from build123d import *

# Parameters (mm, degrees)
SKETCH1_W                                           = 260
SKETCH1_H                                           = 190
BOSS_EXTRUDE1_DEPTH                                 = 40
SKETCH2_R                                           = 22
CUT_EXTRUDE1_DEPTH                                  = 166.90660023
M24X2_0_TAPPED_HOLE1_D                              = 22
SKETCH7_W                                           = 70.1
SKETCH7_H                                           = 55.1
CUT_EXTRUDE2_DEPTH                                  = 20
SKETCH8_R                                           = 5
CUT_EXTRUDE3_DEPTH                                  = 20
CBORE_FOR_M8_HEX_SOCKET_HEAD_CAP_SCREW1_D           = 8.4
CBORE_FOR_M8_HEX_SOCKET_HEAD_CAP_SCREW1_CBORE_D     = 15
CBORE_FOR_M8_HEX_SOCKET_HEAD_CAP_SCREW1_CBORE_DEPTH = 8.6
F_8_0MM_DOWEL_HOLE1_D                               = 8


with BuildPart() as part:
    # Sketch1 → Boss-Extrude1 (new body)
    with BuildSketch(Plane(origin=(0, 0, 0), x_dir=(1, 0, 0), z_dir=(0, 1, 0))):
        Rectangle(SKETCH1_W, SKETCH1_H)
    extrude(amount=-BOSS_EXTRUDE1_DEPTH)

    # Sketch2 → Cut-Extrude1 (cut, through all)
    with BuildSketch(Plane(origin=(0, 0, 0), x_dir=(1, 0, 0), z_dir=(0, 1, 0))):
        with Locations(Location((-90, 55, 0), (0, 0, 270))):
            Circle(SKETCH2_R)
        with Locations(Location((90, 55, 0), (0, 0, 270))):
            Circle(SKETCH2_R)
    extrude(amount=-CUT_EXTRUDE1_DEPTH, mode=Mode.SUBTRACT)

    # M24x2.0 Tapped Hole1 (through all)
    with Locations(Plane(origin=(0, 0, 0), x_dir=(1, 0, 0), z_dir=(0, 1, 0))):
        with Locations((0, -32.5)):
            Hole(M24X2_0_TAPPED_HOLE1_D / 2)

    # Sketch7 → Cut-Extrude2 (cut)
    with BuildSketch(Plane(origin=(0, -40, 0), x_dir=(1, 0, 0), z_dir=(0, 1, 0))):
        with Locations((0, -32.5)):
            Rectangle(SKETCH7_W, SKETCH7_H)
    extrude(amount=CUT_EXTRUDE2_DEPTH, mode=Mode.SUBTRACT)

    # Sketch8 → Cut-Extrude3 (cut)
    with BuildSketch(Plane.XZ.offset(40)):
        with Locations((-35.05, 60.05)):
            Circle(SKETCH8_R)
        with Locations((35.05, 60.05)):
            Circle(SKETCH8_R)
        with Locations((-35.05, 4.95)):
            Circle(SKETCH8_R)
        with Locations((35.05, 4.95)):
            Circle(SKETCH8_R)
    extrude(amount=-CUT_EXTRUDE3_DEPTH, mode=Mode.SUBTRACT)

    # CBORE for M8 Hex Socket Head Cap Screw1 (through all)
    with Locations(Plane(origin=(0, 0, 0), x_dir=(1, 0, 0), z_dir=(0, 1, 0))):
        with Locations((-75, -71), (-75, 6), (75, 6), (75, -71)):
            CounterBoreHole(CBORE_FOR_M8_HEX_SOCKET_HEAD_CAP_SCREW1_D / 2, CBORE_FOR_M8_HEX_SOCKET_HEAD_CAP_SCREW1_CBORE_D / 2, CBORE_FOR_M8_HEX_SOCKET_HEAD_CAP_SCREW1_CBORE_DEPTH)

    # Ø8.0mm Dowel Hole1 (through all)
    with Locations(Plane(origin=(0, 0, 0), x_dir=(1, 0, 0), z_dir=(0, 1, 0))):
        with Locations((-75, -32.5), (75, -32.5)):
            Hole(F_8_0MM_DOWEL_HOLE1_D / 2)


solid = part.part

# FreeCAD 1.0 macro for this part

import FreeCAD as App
import Part
import Sketcher
from FreeCAD import Vector
Q = App.Units.Quantity

doc = App.newDocument("Part")
body = doc.addObject("PartDesign::Body", "Body")

sketch1 = body.newObject("Sketcher::SketchObject", "Sketch")
sketch1.AttachmentSupport = (doc.getObject("XZ_Plane"), [""])
sketch1.MapMode = "FlatFace"
sketch1.addGeometry([
    Part.LineSegment(Vector(-130, -95, 0), Vector(-130, 95, 0)),
    Part.LineSegment(Vector(-130, 95, 0), Vector(130, 95, 0)),
    Part.LineSegment(Vector(130, 95, 0), Vector(130, -95, 0)),
    Part.LineSegment(Vector(130, -95, 0), Vector(-130, -95, 0)),
], False)
sketch1.addConstraint([
    Sketcher.Constraint("Coincident", 0, 2, 1, 1),
    Sketcher.Constraint("Coincident", 1, 2, 2, 1),
    Sketcher.Constraint("Coincident", 2, 2, 3, 1),
    Sketcher.Constraint("Coincident", 3, 2, 0, 1),
    Sketcher.Constraint("Vertical", 0),
    Sketcher.Constraint("Horizontal", 1),
    Sketcher.Constraint("Vertical", 2),
    Sketcher.Constraint("Horizontal", 3),
    Sketcher.Constraint("Symmetric", 0, 2, 2, 2, -1, 1),
    Sketcher.Constraint("DistanceX", 1, 1, 1, 2, Q("260 mm")),
    Sketcher.Constraint("DistanceY", 0, 1, 0, 2, Q("190 mm")),
])
pad1 = body.newObject("PartDesign::Pad", "Pad")
pad1.Profile = sketch1
pad1.Length = 40

sketch2 = body.newObject("Sketcher::SketchObject", "Sketch001")
sketch2.AttachmentSupport = (doc.getObject("XZ_Plane"), [""])
sketch2.MapMode = "FlatFace"
sketch2.addGeometry([
    Part.Circle(Vector(-90, -55, 0), Vector(0, 0, 1), 22),
    Part.Circle(Vector(90, -55, 0), Vector(0, 0, 1), 22),
], False)
sketch2.addConstraint([
    Sketcher.Constraint("Equal", 0, 1),
    Sketcher.Constraint("Symmetric", 0, 3, 1, 3, -2),
    Sketcher.Constraint("Diameter", 0, Q("44 mm")),
    Sketcher.Constraint("DistanceX", 0, 3, -1, 1, Q("90 mm")),
    Sketcher.Constraint("DistanceY", 0, 3, -1, 1, Q("55 mm")),
])
pocket1 = body.newObject("PartDesign::Pocket", "Pocket")
pocket1.Profile = sketch2
pocket1.Type = "ThroughAll"
pocket1.Reversed = True

sketch3 = body.newObject("Sketcher::SketchObject", "Sketch002")
sketch3.AttachmentSupport = (doc.getObject("XZ_Plane"), [""])
sketch3.MapMode = "FlatFace"
sketch3.addGeometry(Part.Circle(Vector(0, 32, 0), Vector(0, 0, 1), 11), False)
sketch3.addConstraint([
    Sketcher.Constraint("PointOnObject", 0, 3, -2),
    Sketcher.Constraint("Diameter", 0, Q("22 mm")),
    Sketcher.Constraint("DistanceY", -1, 1, 0, 3, Q("32.5 mm")),
])
doc.recompute()
hole = body.newObject("PartDesign::Hole", "Hole")
hole.Profile = sketch3
hole.ThreadType = "None"
hole.Diameter = 22
hole.DepthType = "ThroughAll"
hole.Reversed = True

sketch4 = body.newObject("Sketcher::SketchObject", "Sketch003")
sketch4.AttachmentSupport = (doc.getObject("XZ_Plane"), [""])
sketch4.MapMode = "FlatFace"
sketch4.AttachmentOffset = App.Placement(Vector(0, 0, 40), App.Rotation())
sketch4.addGeometry([
    Part.LineSegment(Vector(-35, 5, 0), Vector(-35, 60, 0)),
    Part.LineSegment(Vector(-35, 60, 0), Vector(35, 60, 0)),
    Part.LineSegment(Vector(35, 60, 0), Vector(35, 5, 0)),
    Part.LineSegment(Vector(35, 5, 0), Vector(-35, 5, 0)),
], False)
sketch4.addConstraint([
    Sketcher.Constraint("Coincident", 0, 2, 1, 1),
    Sketcher.Constraint("Coincident", 1, 2, 2, 1),
    Sketcher.Constraint("Coincident", 2, 2, 3, 1),
    Sketcher.Constraint("Coincident", 3, 2, 0, 1),
    Sketcher.Constraint("Vertical", 0),
    Sketcher.Constraint("Horizontal", 1),
    Sketcher.Constraint("Vertical", 2),
    Sketcher.Constraint("Horizontal", 3),
    Sketcher.Constraint("DistanceX", 1, 1, 1, 2, Q("70.1 mm")),
    Sketcher.Constraint("DistanceY", 0, 1, 0, 2, Q("55.1 mm")),
    Sketcher.Constraint("DistanceX", 0, 2, -1, 1, Q("35.05 mm")),
    Sketcher.Constraint("DistanceY", -1, 1, 0, 2, Q("60.05 mm")),
])
pocket2 = body.newObject("PartDesign::Pocket", "Pocket001")
pocket2.Profile = sketch4
pocket2.Length = 20

sketch5 = body.newObject("Sketcher::SketchObject", "Sketch004")
sketch5.AttachmentSupport = (doc.getObject("XZ_Plane"), [""])
sketch5.MapMode = "FlatFace"
sketch5.AttachmentOffset = App.Placement(Vector(0, 0, 40), App.Rotation())
sketch5.addGeometry([
    Part.Circle(Vector(-35, 60, 0), Vector(0, 0, 1), 5),
    Part.Circle(Vector(35, 60, 0), Vector(0, 0, 1), 5),
    Part.Circle(Vector(-35, 5, 0), Vector(0, 0, 1), 5),
    Part.Circle(Vector(35, 5, 0), Vector(0, 0, 1), 5),
], False)
sketch5.addConstraint([
    Sketcher.Constraint("Equal", 0, 1),
    Sketcher.Constraint("Equal", 1, 2),
    Sketcher.Constraint("Equal", 2, 3),
    Sketcher.Constraint("Symmetric", 0, 3, 1, 3, -2),
    Sketcher.Constraint("Symmetric", 2, 3, 3, 3, -2),
    Sketcher.Constraint("Vertical", 0, 3, 2, 3),
    Sketcher.Constraint("Diameter", 0, Q("10 mm")),
    Sketcher.Constraint("DistanceX", 0, 3, 1, 3, Q("70.1 mm")),
    Sketcher.Constraint("DistanceY", 2, 3, 0, 3, Q("55.1 mm")),
    Sketcher.Constraint("DistanceY", -1, 1, 0, 3, Q("60.05 mm")),
])
pocket3 = body.newObject("PartDesign::Pocket", "Pocket002")
pocket3.Profile = sketch5
pocket3.Length = 20

sketch6 = body.newObject("Sketcher::SketchObject", "Sketch005")
sketch6.AttachmentSupport = (doc.getObject("XZ_Plane"), [""])
sketch6.MapMode = "FlatFace"
sketch6.addGeometry([
    Part.Circle(Vector(-75, 71, 0), Vector(0, 0, 1), 4.2),
    Part.Circle(Vector(-75, -6, 0), Vector(0, 0, 1), 4.2),
    Part.Circle(Vector(75, -6, 0), Vector(0, 0, 1), 4.2),
    Part.Circle(Vector(75, 71, 0), Vector(0, 0, 1), 4.2),
], False)
sketch6.addConstraint([
    Sketcher.Constraint("Equal", 0, 1),
    Sketcher.Constraint("Equal", 1, 2),
    Sketcher.Constraint("Equal", 2, 3),
    Sketcher.Constraint("Symmetric", 1, 3, 2, 3, -2),
    Sketcher.Constraint("Symmetric", 0, 3, 3, 3, -2),
    Sketcher.Constraint("Vertical", 0, 3, 1, 3),
    Sketcher.Constraint("Diameter", 0, Q("8.4 mm")),
    Sketcher.Constraint("DistanceX", 0, 3, -1, 1, Q("75 mm")),
    Sketcher.Constraint("DistanceY", -1, 1, 0, 3, Q("71 mm")),
    Sketcher.Constraint("DistanceY", 1, 3, -1, 1, Q("6 mm")),
])
doc.recompute()
hole2 = body.newObject("PartDesign::Hole", "Hole001")
hole2.Profile = sketch6
hole2.ThreadType = "None"
hole2.Diameter = 8.4
hole2.DepthType = "ThroughAll"
hole2.HoleCutType = "Counterbore"
hole2.HoleCutDiameter = 15
hole2.HoleCutDepth = 8.6
hole2.Reversed = True

sketch7 = body.newObject("Sketcher::SketchObject", "Sketch006")
sketch7.AttachmentSupport = (doc.getObject("XZ_Plane"), [""])
sketch7.MapMode = "FlatFace"
sketch7.addGeometry([
    Part.Circle(Vector(-75, 32.5, 0), Vector(0, 0, 1), 4),
    Part.Circle(Vector(75, 32.5, 0), Vector(0, 0, 1), 4),
], False)
sketch7.addConstraint([
    Sketcher.Constraint("Equal", 0, 1),
    Sketcher.Constraint("Symmetric", 0, 3, 1, 3, -2),
    Sketcher.Constraint("Diameter", 0, Q("8 mm")),
    Sketcher.Constraint("DistanceX", 0, 3, -1, 1, Q("75 mm")),
    Sketcher.Constraint("DistanceY", -1, 1, 0, 3, Q("32.5 mm")),
])
doc.recompute()
hole3 = body.newObject("PartDesign::Hole", "Hole002")
hole3.Profile = sketch7
hole3.ThreadType = "None"
hole3.Diameter = 8
hole3.DepthType = "ThroughAll"
hole3.Reversed = True

doc.recompute()
